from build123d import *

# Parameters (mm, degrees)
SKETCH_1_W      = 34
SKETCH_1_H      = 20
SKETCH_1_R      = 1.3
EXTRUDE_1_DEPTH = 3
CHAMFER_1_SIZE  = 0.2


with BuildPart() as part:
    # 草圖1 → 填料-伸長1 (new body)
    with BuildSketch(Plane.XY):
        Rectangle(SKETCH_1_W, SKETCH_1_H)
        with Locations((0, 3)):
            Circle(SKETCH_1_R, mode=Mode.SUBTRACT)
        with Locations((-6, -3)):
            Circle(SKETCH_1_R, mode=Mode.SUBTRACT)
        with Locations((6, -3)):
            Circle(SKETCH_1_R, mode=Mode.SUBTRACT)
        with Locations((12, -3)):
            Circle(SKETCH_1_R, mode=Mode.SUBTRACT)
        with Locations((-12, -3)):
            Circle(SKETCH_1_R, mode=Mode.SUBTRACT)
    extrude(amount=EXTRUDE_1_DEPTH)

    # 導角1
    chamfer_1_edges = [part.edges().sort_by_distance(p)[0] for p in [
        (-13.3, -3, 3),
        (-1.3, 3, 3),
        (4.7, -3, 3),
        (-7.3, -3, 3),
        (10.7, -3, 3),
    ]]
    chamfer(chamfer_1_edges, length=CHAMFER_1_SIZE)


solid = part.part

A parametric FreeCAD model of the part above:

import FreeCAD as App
import Part
import Sketcher
Q = App.Units.Quantity


def edges_at(feature, points):
    """Names of the edges that pass closest to the given points."""
    edges = feature.Shape.Edges
    near = lambda p: min(range(len(edges)), key=lambda i: edges[i].distToShape(Part.Vertex(*p))[0])
    return sorted({f"Edge{near(p) + 1}" for p in points})

doc = App.newDocument("Part")
body = doc.addObject("PartDesign::Body", "Body")

sketch1 = doc.addObject("Sketcher::SketchObject", "Sketch")
body.addObject(sketch1)
sketch1.AttachmentSupport = (doc.XY_Plane, [""])
sketch1.MapMode = "FlatFace"
sketch1.addGeometry([
    Part.LineSegment(App.Vector(-17, 10, 0), App.Vector(-17, -10, 0)),
    Part.LineSegment(App.Vector(-17, -10, 0), App.Vector(17, -10, 0)),
    Part.LineSegment(App.Vector(17, -10, 0), App.Vector(17, 10, 0)),
    Part.LineSegment(App.Vector(17, 10, 0), App.Vector(-17, 10, 0)),
    Part.Circle(App.Vector(-12, -3, 0), App.Vector(0, 0, 1), 1.3),
    Part.Circle(App.Vector(-6, -3, 0), App.Vector(0, 0, 1), 1.3),
    Part.Circle(App.Vector(6, -3, 0), App.Vector(0, 0, 1), 1.3),
    Part.Circle(App.Vector(12, -3, 0), App.Vector(0, 0, 1), 1.3),
    Part.Circle(App.Vector(0, 3, 0), App.Vector(0, 0, 1), 1.3),
], False)
sketch1.addConstraint([
    Sketcher.Constraint("Coincident", 0, 2, 1, 1),
    Sketcher.Constraint("Coincident", 1, 2, 2, 1),
    Sketcher.Constraint("Coincident", 2, 2, 3, 1),
    Sketcher.Constraint("Coincident", 3, 2, 0, 1),
    Sketcher.Constraint("Vertical", 0),
    Sketcher.Constraint("Horizontal", 1),
    Sketcher.Constraint("Vertical", 2),
    Sketcher.Constraint("Horizontal", 3),
    Sketcher.Constraint("Equal", 4, 5),
    Sketcher.Constraint("Equal", 5, 6),
    Sketcher.Constraint("Equal", 6, 7),
    Sketcher.Constraint("Equal", 7, 8),
    Sketcher.Constraint("Symmetric", 0, 2, 2, 2, -1, 1),
    Sketcher.Constraint("Symmetric", 5, 3, 6, 3, -2),
    Sketcher.Constraint("Symmetric", 4, 3, 7, 3, -2),
    Sketcher.Constraint("PointOnObject", 8, 3, -2),
    Sketcher.Constraint("Horizontal", 4, 3, 5, 3),
    Sketcher.Constraint("Diameter", 4, Q("2.6 mm")),
    Sketcher.Constraint("DistanceX", 1, 1, 1, 2, Q("34 mm")),
    Sketcher.Constraint("DistanceY", 0, 2, 0, 1, Q("20 mm")),
    Sketcher.Constraint("DistanceX", 4, 3, -1, 1, Q("12 mm")),
    Sketcher.Constraint("DistanceY", 4, 3, -1, 1, Q("3 mm")),
    Sketcher.Constraint("DistanceX", 5, 3, -1, 1, Q("6 mm")),
    Sketcher.Constraint("DistanceY", -1, 1, 8, 3, Q("3 mm")),
])
pad1 = doc.addObject("PartDesign::Pad", "Pad")
body.addObject(pad1)
pad1.Profile = sketch1
pad1.Length = 3
doc.recompute()

chamfer = doc.addObject("PartDesign::Chamfer", "Chamfer")
body.addObject(chamfer)
chamfer.Base = (pad1, edges_at(pad1, [
    (-13.3, -3, 3),
    (-1.3, 3, 3),
    (4.7, -3, 3),
    (-7.3, -3, 3),
    (10.7, -3, 3),
]))
chamfer.Size = 0.2

doc.recompute()
